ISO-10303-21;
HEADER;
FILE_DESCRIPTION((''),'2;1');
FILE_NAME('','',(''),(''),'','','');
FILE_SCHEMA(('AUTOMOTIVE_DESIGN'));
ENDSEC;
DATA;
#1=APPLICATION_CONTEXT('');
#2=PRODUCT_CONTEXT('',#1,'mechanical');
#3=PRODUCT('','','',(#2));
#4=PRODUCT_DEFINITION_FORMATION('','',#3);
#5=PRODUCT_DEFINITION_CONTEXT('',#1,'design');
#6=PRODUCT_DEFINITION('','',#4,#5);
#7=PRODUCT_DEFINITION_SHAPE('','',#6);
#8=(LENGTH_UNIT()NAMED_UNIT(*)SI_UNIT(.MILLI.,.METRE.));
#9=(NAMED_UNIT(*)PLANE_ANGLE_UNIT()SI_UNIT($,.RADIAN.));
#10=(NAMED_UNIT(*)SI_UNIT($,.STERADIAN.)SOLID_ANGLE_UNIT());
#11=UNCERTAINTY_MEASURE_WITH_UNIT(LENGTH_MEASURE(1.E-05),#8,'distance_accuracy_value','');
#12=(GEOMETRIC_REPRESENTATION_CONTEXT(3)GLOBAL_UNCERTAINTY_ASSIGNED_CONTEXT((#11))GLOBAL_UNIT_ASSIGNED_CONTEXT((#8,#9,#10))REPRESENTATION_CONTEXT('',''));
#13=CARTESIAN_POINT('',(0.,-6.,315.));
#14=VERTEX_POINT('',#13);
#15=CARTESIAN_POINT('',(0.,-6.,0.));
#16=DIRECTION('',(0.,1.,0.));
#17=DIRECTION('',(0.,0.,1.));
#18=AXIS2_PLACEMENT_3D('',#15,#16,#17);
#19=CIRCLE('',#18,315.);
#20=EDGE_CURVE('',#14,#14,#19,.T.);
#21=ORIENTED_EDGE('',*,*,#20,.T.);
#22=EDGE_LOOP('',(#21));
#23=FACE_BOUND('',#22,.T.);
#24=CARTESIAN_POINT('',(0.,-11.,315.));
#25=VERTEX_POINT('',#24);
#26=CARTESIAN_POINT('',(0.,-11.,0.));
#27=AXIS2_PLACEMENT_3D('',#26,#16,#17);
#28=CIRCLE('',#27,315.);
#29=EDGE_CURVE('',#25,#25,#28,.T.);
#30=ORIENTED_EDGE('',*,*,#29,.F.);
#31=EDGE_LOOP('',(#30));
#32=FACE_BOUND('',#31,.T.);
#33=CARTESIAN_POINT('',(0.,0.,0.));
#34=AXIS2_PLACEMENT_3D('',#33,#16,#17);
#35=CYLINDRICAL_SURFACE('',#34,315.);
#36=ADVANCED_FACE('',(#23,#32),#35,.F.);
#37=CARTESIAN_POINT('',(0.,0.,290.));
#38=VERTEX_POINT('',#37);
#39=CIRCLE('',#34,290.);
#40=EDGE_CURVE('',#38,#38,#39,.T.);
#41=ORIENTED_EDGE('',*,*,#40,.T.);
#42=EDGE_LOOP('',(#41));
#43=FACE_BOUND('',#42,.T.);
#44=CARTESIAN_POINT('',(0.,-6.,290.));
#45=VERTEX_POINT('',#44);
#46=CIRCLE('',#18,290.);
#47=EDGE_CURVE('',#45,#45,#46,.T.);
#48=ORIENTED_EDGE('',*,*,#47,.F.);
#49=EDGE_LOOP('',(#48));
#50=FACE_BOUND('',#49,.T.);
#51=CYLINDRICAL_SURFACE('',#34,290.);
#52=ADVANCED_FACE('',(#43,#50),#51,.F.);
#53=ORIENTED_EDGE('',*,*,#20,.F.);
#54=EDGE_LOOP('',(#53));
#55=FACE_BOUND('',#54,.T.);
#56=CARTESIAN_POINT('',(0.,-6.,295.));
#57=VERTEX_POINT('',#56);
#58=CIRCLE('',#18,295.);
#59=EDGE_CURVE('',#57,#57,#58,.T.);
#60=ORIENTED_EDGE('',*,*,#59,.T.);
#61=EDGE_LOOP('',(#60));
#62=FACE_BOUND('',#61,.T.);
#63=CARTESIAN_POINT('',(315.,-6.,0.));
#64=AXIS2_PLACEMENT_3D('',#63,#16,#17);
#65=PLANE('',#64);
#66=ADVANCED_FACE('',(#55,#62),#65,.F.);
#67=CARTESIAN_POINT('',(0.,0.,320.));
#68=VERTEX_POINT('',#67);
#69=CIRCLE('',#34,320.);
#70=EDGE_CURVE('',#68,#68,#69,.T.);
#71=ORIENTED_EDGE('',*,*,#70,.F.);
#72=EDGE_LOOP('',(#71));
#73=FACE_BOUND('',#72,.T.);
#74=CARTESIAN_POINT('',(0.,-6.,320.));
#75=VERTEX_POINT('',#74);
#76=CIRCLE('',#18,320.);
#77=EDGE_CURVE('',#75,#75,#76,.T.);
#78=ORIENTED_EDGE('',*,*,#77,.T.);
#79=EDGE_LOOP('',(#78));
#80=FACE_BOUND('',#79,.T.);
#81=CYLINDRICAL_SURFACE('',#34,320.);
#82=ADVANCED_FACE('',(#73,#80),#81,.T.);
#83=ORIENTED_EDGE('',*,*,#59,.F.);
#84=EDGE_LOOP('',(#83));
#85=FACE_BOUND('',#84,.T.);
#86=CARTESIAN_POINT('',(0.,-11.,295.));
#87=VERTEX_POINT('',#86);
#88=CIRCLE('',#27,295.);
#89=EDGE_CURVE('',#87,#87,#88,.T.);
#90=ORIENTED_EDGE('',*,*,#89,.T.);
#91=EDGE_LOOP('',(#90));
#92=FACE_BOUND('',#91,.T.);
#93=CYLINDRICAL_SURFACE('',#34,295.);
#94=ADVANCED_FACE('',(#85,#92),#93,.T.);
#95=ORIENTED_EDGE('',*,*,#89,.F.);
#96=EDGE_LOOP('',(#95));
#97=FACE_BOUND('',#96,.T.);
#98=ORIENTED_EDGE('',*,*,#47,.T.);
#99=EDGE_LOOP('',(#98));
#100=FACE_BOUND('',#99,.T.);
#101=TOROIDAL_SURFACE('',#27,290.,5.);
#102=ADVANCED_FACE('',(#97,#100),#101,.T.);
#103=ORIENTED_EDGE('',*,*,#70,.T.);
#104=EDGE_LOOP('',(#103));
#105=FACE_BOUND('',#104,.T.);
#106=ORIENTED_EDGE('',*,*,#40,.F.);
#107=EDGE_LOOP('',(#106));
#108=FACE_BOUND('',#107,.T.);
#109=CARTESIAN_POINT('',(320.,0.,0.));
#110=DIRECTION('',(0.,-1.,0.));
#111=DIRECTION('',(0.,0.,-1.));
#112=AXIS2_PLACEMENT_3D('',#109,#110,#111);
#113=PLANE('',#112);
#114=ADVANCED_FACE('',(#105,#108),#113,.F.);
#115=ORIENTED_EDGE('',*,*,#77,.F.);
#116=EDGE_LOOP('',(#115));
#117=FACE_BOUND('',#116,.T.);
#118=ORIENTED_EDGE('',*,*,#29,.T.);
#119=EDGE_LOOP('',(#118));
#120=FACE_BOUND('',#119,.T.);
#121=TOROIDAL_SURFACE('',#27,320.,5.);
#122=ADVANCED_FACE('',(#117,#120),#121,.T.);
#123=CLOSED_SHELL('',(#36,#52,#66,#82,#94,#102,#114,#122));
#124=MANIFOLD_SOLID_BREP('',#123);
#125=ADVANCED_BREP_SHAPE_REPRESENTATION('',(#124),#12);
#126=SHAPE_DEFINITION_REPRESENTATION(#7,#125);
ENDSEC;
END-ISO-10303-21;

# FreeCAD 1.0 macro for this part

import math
import FreeCAD as App
import Part
import Sketcher
from FreeCAD import Vector
Q = App.Units.Quantity

doc = App.newDocument("Part")
body = doc.addObject("PartDesign::Body", "Body")

# Sketch on XY plane
sketch1 = body.newObject("Sketcher::SketchObject", "Sketch")
sketch1.AttachmentSupport = (doc.getObject("XY_Plane"), [""])
sketch1.MapMode = "FlatFace"
sketch1.addGeometry([
    Part.LineSegment(Vector(295, -11, 0), Vector(295, -6, 0)),  # 0
    Part.LineSegment(Vector(295, -6, 0), Vector(315, -6, 0)),  # 1
    Part.LineSegment(Vector(315, -6, 0), Vector(315, -11, 0)),  # 2
    Part.ArcOfCircle(Part.Circle(Vector(320, -11, 0), Vector(0, 0, 1), 5), math.radians(180), math.radians(450)),  # 3
    Part.LineSegment(Vector(320, -6, 0), Vector(320, 0, 0)),  # 4
    Part.LineSegment(Vector(320, 0, 0), Vector(290, 0, 0)),  # 5
    Part.LineSegment(Vector(290, 0, 0), Vector(290, -6, 0)),  # 6
    Part.ArcOfCircle(Part.Circle(Vector(290, -11, 0), Vector(0, 0, 1), 5), math.radians(90), math.radians(360)),  # 7
], False)
sketch1.addConstraint([
    Sketcher.Constraint("Coincident", 0, 2, 1, 1),
    Sketcher.Constraint("Coincident", 1, 2, 2, 1),
    Sketcher.Constraint("Tangent", 2, 2, 3, 1),
    Sketcher.Constraint("Coincident", 3, 2, 4, 1),
    Sketcher.Constraint("Coincident", 4, 2, 5, 1),
    Sketcher.Constraint("Coincident", 5, 2, 6, 1),
    Sketcher.Constraint("Coincident", 6, 2, 7, 1),
    Sketcher.Constraint("Tangent", 7, 2, 0, 1),
    Sketcher.Constraint("Vertical", 0),
    Sketcher.Constraint("Horizontal", 1),
    Sketcher.Constraint("Vertical", 2),
    Sketcher.Constraint("Vertical", 4),
    Sketcher.Constraint("Horizontal", 5),
    Sketcher.Constraint("Vertical", 6),
    Sketcher.Constraint("Equal", 3, 7),
    Sketcher.Constraint("PointOnObject", 4, 2, -1),
    Sketcher.Constraint("Horizontal", 3, 3, 7, 3),
    Sketcher.Constraint("Horizontal", 1, 2, 3, 2),
    Sketcher.Constraint("Vertical", 7, 3, 5, 2),
    Sketcher.Constraint("Radius", 3, Q("5 mm")),
    Sketcher.Constraint("DistanceX", 1, 1, 1, 2, Q("20 mm")),
    Sketcher.Constraint("DistanceX", 5, 2, 5, 1, Q("30 mm")),
    Sketcher.Constraint("DistanceY", 4, 1, 4, 2, Q("6 mm")),
    Sketcher.Constraint("DistanceX", -1, 1, 3, 3, Q("320 mm")),
])
revolution = body.newObject("PartDesign::Revolution", "Revolution")
revolution.Profile = sketch1
revolution.ReferenceAxis = (sketch1, ["V_Axis"])
revolution.Angle = 360

doc.recompute()
